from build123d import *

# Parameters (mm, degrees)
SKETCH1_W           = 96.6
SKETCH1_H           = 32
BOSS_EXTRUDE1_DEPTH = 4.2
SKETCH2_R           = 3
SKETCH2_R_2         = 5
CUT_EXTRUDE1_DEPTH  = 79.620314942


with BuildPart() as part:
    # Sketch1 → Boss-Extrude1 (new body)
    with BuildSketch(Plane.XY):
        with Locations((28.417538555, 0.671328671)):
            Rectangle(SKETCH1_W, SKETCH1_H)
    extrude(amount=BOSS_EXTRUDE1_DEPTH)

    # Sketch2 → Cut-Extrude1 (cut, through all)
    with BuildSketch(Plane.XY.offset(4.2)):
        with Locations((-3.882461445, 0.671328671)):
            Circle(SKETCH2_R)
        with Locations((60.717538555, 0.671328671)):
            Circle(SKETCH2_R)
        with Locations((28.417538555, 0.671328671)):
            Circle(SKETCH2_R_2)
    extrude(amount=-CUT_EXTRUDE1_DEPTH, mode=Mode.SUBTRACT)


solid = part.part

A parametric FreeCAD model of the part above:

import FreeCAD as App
import Part
import Sketcher
Q = App.Units.Quantity


def add_polygon(sketch, points):
    """Adds a closed chain of lines whose ends are joined by coincident constraints."""
    first, n = sketch.GeometryCount, len(points)
    for a, b in zip(points, points[1:] + points[:1]):
        sketch.addGeometry(Part.LineSegment(App.Vector(*a, 0), App.Vector(*b, 0)), False)
    for i in range(n):
        sketch.addConstraint(Sketcher.Constraint("Coincident", first + i, 2, first + (i + 1) % n, 1))

doc = App.newDocument("Part")
body = doc.addObject("PartDesign::Body", "Body")

sketch1 = doc.addObject("Sketcher::SketchObject", "Sketch")
body.addObject(sketch1)
sketch1.AttachmentSupport = (doc.XY_Plane, [""])
sketch1.MapMode = "FlatFace"
add_polygon(sketch1, [(-20, 17), (-20, -15), (77, -15), (77, 17)])
sketch1.addConstraint([
    Sketcher.Constraint("Vertical", 0),
    Sketcher.Constraint("Horizontal", 1),
    Sketcher.Constraint("Vertical", 2),
    Sketcher.Constraint("Horizontal", 3),
    Sketcher.Constraint("DistanceY", 0, 2, 0, 1, Q("32 mm")),
    Sketcher.Constraint("DistanceX", 1, 1, 1, 2, Q("96.6 mm")),
    Sketcher.Constraint("DistanceX", 0, 2, -1, 1, Q("19.882461 mm")),
    Sketcher.Constraint("DistanceY", 0, 2, -1, 1, Q("15.328671 mm")),
])
pad1 = doc.addObject("PartDesign::Pad", "Pad")
body.addObject(pad1)
pad1.Profile = sketch1
pad1.Length = 4.2

sketch2 = doc.addObject("Sketcher::SketchObject", "Sketch001")
body.addObject(sketch2)
sketch2.AttachmentSupport = (doc.XY_Plane, [""])
sketch2.MapMode = "FlatFace"
sketch2.AttachmentOffset = App.Placement(App.Vector(0, 0, 4.2), App.Rotation())
sketch2.addGeometry([
    Part.Circle(App.Vector(-3.9, 0.7, 0), App.Vector(0, 0, 1), 3),
    Part.Circle(App.Vector(60.7, 0.7, 0), App.Vector(0, 0, 1), 3),
    Part.Circle(App.Vector(28.4, 0.7, 0), App.Vector(0, 0, 1), 5),
], False)
sketch2.addConstraint([
    Sketcher.Constraint("Equal", 0, 1),
    Sketcher.Constraint("Horizontal", 0, 3, 1, 3),
    Sketcher.Constraint("Horizontal", 1, 3, 2, 3),
    Sketcher.Constraint("Diameter", 0, Q("6 mm")),
    Sketcher.Constraint("Diameter", 2, Q("10 mm")),
    Sketcher.Constraint("DistanceX", 0, 3, 1, 3, Q("64.6 mm")),
    Sketcher.Constraint("DistanceX", 0, 3, 2, 3, Q("32.3 mm")),
    Sketcher.Constraint("DistanceX", 0, 3, -1, 1, Q("3.882461 mm")),
    Sketcher.Constraint("DistanceY", -1, 1, 0, 3, Q("0.671329 mm")),
])
pocket1 = doc.addObject("PartDesign::Pocket", "Pocket")
body.addObject(pocket1)
pocket1.Profile = sketch2
pocket1.Type = "ThroughAll"

doc.recompute()
